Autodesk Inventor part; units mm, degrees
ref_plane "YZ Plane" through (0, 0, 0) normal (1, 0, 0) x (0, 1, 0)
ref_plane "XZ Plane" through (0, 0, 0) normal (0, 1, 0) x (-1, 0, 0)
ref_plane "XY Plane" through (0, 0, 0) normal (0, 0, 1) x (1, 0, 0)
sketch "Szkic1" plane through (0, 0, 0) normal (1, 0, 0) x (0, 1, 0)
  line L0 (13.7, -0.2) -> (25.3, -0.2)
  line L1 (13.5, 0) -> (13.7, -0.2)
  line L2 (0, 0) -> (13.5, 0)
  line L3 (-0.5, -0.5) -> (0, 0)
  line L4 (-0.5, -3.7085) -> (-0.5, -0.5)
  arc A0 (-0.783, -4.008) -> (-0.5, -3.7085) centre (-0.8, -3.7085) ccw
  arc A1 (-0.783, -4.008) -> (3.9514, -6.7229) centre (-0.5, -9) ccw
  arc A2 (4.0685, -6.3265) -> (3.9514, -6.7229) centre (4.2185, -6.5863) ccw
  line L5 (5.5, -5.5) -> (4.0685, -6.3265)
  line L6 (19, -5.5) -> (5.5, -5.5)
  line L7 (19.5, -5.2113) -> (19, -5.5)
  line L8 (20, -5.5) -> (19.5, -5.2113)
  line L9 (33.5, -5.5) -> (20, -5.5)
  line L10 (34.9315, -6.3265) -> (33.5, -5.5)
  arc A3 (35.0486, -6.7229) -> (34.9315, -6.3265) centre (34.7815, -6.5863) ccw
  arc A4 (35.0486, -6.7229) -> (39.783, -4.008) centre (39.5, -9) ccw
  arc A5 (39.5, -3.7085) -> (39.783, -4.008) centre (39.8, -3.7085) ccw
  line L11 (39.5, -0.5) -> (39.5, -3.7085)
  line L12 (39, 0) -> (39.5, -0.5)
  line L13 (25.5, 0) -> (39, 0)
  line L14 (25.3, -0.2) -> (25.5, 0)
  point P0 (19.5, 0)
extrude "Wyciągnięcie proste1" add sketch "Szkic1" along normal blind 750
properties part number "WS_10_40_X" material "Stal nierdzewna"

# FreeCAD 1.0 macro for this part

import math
import FreeCAD as App
import Part
import Sketcher

V = App.Vector
Q = App.Units.Quantity

doc = App.newDocument("Part")
body = doc.addObject("PartDesign::Body", "Body")

# Sketch on YZ plane
sketch1 = body.newObject("Sketcher::SketchObject", "Sketch")
sketch1.AttachmentSupport = (doc.getObject("YZ_Plane"), [""])
sketch1.MapMode = "FlatFace"
sketch1.addGeometry([
    Part.LineSegment(V(25.3, -0.2, 0), V(13.7, -0.2, 0)),  # 0
    Part.LineSegment(V(13.7, -0.2, 0), V(13.5, 0, 0)),  # 1
    Part.LineSegment(V(13.5, 0, 0), V(0, 0, 0)),  # 2
    Part.LineSegment(V(0, 0, 0), V(-0.5, -0.5, 0)),  # 3
    Part.LineSegment(V(-0.5, -0.5, 0), V(-0.5, -3.71, 0)),  # 4
    Part.ArcOfCircle(Part.Circle(V(-0.8, -3.71, 0), V(0, 0, 1), 0.3), math.radians(-87), math.radians(0)),  # 5
    Part.ArcOfCircle(Part.Circle(V(-0.5, -9, 0), V(0, 0, 1), 5), math.radians(93), math.radians(387)),  # 6
    Part.ArcOfCircle(Part.Circle(V(4.22, -6.59, 0), V(0, 0, 1), 0.3), math.radians(120), math.radians(207)),  # 7
    Part.LineSegment(V(4.07, -6.33, 0), V(5.5, -5.5, 0)),  # 8
    Part.LineSegment(V(5.5, -5.5, 0), V(19, -5.5, 0)),  # 9
    Part.LineSegment(V(19, -5.5, 0), V(19.5, -5.21, 0)),  # 10
    Part.LineSegment(V(19.5, -5.21, 0), V(20, -5.5, 0)),  # 11
    Part.LineSegment(V(20, -5.5, 0), V(33.5, -5.5, 0)),  # 12
    Part.LineSegment(V(33.5, -5.5, 0), V(34.93, -6.33, 0)),  # 13
    Part.ArcOfCircle(Part.Circle(V(34.78, -6.59, 0), V(0, 0, 1), 0.3), math.radians(-27), math.radians(60)),  # 14
    Part.ArcOfCircle(Part.Circle(V(39.5, -9, 0), V(0, 0, 1), 5), math.radians(153), math.radians(447)),  # 15
    Part.ArcOfCircle(Part.Circle(V(39.8, -3.71, 0), V(0, 0, 1), 0.3), math.radians(180), math.radians(267)),  # 16
    Part.LineSegment(V(39.5, -3.71, 0), V(39.5, -0.5, 0)),  # 17
    Part.LineSegment(V(39.5, -0.5, 0), V(39, 0, 0)),  # 18
    Part.LineSegment(V(39, 0, 0), V(25.5, 0, 0)),  # 19
    Part.LineSegment(V(25.5, 0, 0), V(25.3, -0.2, 0)),  # 20
], False)
sketch1.addConstraint([
    Sketcher.Constraint("Coincident", 0, 2, 1, 1),
    Sketcher.Constraint("Coincident", 1, 2, 2, 1),
    Sketcher.Constraint("Coincident", 2, 2, 3, 1),
    Sketcher.Constraint("Coincident", 3, 2, 4, 1),
    Sketcher.Constraint("Tangent", 4, 2, 5, 2),
    Sketcher.Constraint("Tangent", 5, 1, 6, 1),
    Sketcher.Constraint("Tangent", 6, 2, 7, 2),
    Sketcher.Constraint("Tangent", 7, 1, 8, 1),
    Sketcher.Constraint("Coincident", 8, 2, 9, 1),
    Sketcher.Constraint("Coincident", 9, 2, 10, 1),
    Sketcher.Constraint("Coincident", 10, 2, 11, 1),
    Sketcher.Constraint("Coincident", 11, 2, 12, 1),
    Sketcher.Constraint("Coincident", 12, 2, 13, 1),
    Sketcher.Constraint("Tangent", 13, 2, 14, 2),
    Sketcher.Constraint("Tangent", 14, 1, 15, 1),
    Sketcher.Constraint("Tangent", 15, 2, 16, 2),
    Sketcher.Constraint("Tangent", 16, 1, 17, 1),
    Sketcher.Constraint("Coincident", 17, 2, 18, 1),
    Sketcher.Constraint("Coincident", 18, 2, 19, 1),
    Sketcher.Constraint("Coincident", 19, 2, 20, 1),
    Sketcher.Constraint("Coincident", 20, 2, 0, 1),
    Sketcher.Constraint("Horizontal", 0),
    Sketcher.Constraint("Horizontal", 2),
    Sketcher.Constraint("Vertical", 4),
    Sketcher.Constraint("Horizontal", 9),
    Sketcher.Constraint("Horizontal", 12),
    Sketcher.Constraint("Vertical", 17),
    Sketcher.Constraint("Horizontal", 19),
    Sketcher.Constraint("Coincident", 2, 2, -1, 1),
    Sketcher.Constraint("Equal", 5, 7),
    Sketcher.Constraint("Equal", 7, 14),
    Sketcher.Constraint("Equal", 6, 15),
    Sketcher.Constraint("Equal", 14, 16),
    Sketcher.Constraint("PointOnObject", 18, 2, -1),
    Sketcher.Constraint("Perpendicular", 1, 3),
    Sketcher.Constraint("Parallel", 8, 10),
    Sketcher.Constraint("Parallel", 11, 13),
    Sketcher.Constraint("Perpendicular", 3, 18),
    Sketcher.Constraint("Perpendicular", 18, 20),
    Sketcher.Constraint("Horizontal", 7, 3, 14, 3),
    Sketcher.Constraint("Horizontal", 6, 3, 15, 3),
    Sketcher.Constraint("Horizontal", 5, 3, 16, 3),
    Sketcher.Constraint("Horizontal", 9, 2, 11, 2),
    Sketcher.Constraint("Horizontal", 7, 1, 13, 2),
    Sketcher.Constraint("Horizontal", 3, 2, 17, 2),
    Sketcher.Constraint("Vertical", 6, 3, 3, 2),
    Sketcher.Constraint("Equal", 2, 9),
    Sketcher.Constraint("Equal", 9, 12),
    Sketcher.Constraint("Equal", 12, 19),
    Sketcher.Constraint("Equal", 3, 18),
    Sketcher.Constraint("Radius", 6, Q("5 mm")),
    Sketcher.Constraint("Radius", 5, Q("0.3 mm")),
    Sketcher.Constraint("Angle", 8, Q("30.0007 deg")),
    Sketcher.Constraint("DistanceX", 0, 2, 0, 1, Q("11.6 mm")),
    Sketcher.Constraint("DistanceX", 2, 2, 2, 1, Q("13.5 mm")),
    Sketcher.Constraint("DistanceY", 6, 3, -1, 1, Q("9 mm")),
    Sketcher.Constraint("DistanceX", -1, 1, 9, 2, Q("19 mm")),
    Sketcher.Constraint("DistanceX", -1, 1, 11, 2, Q("20 mm")),
    Sketcher.Constraint("DistanceX", 6, 3, 15, 3, Q("40 mm")),
    Sketcher.Constraint("DistanceY", 8, 2, -1, 1, Q("5.5 mm")),
])
pad1 = body.newObject("PartDesign::Pad", "Pad")
pad1.Profile = sketch1
pad1.Length = 750

doc.recompute()
